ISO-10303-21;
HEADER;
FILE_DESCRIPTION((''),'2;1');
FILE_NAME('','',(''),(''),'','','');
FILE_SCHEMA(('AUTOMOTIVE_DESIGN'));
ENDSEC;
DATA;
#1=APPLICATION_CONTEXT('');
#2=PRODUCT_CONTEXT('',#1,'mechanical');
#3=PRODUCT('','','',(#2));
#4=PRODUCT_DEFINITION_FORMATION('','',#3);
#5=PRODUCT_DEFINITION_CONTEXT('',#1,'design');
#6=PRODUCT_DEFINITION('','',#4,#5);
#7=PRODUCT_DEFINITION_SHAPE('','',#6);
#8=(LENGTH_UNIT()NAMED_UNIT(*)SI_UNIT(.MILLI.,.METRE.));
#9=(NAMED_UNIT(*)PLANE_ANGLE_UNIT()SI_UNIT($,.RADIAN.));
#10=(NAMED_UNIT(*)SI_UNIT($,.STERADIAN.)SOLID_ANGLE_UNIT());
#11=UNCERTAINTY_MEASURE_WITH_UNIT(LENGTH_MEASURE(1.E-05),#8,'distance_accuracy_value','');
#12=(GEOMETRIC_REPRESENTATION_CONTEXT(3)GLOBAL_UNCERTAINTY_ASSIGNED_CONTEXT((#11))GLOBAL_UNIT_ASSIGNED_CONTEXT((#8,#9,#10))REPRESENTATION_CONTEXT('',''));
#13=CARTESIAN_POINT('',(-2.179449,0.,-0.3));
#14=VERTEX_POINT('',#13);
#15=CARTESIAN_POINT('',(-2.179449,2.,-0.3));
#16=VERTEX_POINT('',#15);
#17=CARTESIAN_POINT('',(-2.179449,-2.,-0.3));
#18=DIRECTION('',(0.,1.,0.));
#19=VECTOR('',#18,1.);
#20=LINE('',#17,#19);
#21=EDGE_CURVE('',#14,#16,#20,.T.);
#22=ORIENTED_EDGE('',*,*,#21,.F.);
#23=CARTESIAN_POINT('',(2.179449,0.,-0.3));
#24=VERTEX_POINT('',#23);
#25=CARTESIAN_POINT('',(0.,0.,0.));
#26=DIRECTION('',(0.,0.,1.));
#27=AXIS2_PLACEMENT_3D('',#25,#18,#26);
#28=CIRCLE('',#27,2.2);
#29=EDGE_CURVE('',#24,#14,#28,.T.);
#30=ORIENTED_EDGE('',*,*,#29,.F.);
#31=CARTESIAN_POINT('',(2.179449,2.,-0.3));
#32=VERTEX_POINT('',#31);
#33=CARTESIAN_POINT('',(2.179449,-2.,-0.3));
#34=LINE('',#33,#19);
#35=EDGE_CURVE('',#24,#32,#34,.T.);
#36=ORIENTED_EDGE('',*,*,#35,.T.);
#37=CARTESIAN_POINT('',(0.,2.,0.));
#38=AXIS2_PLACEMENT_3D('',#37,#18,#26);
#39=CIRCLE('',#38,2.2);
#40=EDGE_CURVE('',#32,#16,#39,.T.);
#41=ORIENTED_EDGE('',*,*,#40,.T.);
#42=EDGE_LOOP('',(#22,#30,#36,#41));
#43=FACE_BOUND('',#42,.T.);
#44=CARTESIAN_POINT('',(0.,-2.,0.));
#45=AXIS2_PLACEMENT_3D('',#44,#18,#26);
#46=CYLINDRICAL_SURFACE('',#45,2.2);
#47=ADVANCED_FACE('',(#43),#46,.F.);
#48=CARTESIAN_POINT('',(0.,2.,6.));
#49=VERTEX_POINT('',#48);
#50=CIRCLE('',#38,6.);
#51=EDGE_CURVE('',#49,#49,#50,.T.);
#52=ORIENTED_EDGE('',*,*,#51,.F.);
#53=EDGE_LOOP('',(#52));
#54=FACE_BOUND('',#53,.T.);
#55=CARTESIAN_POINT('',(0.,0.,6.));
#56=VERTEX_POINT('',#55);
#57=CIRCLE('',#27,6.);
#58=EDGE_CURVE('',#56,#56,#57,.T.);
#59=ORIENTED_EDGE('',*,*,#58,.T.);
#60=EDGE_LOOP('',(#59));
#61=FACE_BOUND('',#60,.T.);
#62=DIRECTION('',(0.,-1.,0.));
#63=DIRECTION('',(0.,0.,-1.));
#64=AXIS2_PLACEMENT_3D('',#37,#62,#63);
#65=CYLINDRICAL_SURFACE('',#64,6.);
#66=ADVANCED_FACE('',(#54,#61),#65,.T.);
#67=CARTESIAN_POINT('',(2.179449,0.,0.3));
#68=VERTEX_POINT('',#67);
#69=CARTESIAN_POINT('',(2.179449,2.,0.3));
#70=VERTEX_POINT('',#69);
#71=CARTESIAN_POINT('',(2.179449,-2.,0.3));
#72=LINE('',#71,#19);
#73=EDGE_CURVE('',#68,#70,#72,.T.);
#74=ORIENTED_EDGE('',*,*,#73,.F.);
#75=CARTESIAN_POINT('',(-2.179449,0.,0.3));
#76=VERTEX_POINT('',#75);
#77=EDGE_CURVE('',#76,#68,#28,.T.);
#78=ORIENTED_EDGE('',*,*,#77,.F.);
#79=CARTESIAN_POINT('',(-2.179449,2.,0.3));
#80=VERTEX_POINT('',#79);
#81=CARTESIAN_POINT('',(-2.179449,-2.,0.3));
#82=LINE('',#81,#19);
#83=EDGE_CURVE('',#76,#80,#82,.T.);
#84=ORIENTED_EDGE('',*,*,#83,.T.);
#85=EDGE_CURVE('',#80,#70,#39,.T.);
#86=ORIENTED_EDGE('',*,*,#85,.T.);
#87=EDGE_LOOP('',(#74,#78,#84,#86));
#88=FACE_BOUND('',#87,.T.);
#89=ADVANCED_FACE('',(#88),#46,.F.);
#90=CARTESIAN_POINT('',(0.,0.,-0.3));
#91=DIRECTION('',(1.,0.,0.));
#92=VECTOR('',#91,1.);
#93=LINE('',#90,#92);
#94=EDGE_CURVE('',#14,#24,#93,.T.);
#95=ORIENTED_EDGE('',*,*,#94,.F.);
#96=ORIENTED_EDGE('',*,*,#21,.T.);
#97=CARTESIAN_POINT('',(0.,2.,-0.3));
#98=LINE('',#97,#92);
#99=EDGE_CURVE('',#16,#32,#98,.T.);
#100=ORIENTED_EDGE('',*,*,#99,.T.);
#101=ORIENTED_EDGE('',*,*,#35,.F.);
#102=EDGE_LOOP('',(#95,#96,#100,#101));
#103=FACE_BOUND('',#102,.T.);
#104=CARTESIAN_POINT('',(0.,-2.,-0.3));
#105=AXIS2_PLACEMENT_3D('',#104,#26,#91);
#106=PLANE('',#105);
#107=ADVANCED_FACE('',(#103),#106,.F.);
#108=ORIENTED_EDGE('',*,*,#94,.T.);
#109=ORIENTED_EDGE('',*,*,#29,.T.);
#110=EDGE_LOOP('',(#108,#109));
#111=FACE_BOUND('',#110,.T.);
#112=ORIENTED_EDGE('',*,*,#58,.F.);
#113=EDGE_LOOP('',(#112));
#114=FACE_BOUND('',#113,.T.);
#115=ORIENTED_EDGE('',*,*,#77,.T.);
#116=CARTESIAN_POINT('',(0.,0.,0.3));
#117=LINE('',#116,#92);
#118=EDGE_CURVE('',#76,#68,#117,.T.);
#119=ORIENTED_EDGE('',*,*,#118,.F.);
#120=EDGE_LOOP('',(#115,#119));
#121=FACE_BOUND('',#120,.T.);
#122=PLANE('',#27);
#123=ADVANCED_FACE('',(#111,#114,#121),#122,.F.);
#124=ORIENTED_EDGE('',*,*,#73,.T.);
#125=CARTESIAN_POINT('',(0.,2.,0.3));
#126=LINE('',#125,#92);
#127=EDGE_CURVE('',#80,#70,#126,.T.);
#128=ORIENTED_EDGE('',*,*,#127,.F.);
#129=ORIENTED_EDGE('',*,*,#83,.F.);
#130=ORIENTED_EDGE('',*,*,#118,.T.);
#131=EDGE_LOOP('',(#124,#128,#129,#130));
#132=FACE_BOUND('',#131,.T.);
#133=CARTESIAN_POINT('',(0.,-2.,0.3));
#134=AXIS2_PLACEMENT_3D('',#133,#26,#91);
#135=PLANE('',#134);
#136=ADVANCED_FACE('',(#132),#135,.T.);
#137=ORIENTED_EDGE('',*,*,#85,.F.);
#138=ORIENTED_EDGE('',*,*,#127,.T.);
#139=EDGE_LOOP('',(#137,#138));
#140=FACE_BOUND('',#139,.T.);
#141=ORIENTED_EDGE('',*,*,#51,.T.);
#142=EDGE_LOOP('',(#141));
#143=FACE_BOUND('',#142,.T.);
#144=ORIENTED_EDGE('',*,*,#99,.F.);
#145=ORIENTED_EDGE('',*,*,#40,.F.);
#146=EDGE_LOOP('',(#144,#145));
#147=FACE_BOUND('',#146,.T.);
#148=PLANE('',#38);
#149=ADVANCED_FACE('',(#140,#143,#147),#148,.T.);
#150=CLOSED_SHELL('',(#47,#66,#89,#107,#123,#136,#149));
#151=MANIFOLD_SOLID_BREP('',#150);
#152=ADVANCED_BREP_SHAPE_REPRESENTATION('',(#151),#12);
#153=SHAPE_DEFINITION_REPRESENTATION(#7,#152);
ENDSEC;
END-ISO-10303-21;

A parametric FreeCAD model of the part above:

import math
import FreeCAD as App
import Part
import Sketcher

doc = App.newDocument("Part")
body = doc.addObject("PartDesign::Body", "Body")

# Sketch on XZ plane
sketch1 = body.newObject("Sketcher::SketchObject", "Sketch")
sketch1.AttachmentSupport = (doc.getObject("XZ_Plane"), [""])
sketch1.MapMode = "FlatFace"
sketch1.addGeometry(Part.Circle(App.Vector(0, 0, 0), App.Vector(0, 0, 1), 6), False)
sketch1.addConstraint([
    Sketcher.Constraint("Coincident", 0, 3, -1, 1),
    Sketcher.Constraint("Diameter", 0, 12.0),
])
pad1 = body.newObject("PartDesign::Pad", "Pad")
pad1.Profile = sketch1
pad1.Length = 2
pad1.Reversed = True

# Sketch on XZ plane
sketch2 = body.newObject("Sketcher::SketchObject", "Sketch001")
sketch2.AttachmentSupport = (doc.getObject("XZ_Plane"), [""])
sketch2.MapMode = "FlatFace"
sketch2.AttachmentOffset = App.Placement(App.Vector(0, 0, -2), App.Rotation())
sketch2.addGeometry([
    Part.LineSegment(App.Vector(-2.179449, -0.3, 0), App.Vector(2.179449, -0.3, 0)),
    Part.ArcOfCircle(Part.Circle(App.Vector(0, 0, 0), App.Vector(0, 0, 1), 2.2), math.radians(-172.16252), math.radians(-7.83748)),
    Part.LineSegment(App.Vector(2.179449, 0.3, 0), App.Vector(-2.179449, 0.3, 0)),
    Part.ArcOfCircle(Part.Circle(App.Vector(0, 0, 0), App.Vector(0, 0, 1), 2.2), math.radians(7.83748), math.radians(172.16252)),
], False)
sketch2.addConstraint([
    Sketcher.Constraint("Coincident", 0, 1, 1, 1),
    Sketcher.Constraint("Coincident", 1, 2, 0, 2),
    Sketcher.Constraint("Coincident", 2, 1, 3, 1),
    Sketcher.Constraint("Coincident", 3, 2, 2, 2),
    Sketcher.Constraint("Horizontal", 0),
    Sketcher.Constraint("Horizontal", 2),
    Sketcher.Constraint("Coincident", 1, 3, -1, 1),
    Sketcher.Constraint("Coincident", 3, 3, -1, 1),
    Sketcher.Constraint("Equal", 1, 3),
    Sketcher.Constraint("Vertical", 1, 2, 2, 1),
    Sketcher.Constraint("Radius", 1, 2.2),
    Sketcher.Constraint("DistanceY", 0, 1, -1, 1, 0.3),
])
pocket1 = body.newObject("PartDesign::Pocket", "Pocket")
pocket1.Profile = sketch2
pocket1.Length = 4
pocket1.Reversed = True

doc.recompute()
